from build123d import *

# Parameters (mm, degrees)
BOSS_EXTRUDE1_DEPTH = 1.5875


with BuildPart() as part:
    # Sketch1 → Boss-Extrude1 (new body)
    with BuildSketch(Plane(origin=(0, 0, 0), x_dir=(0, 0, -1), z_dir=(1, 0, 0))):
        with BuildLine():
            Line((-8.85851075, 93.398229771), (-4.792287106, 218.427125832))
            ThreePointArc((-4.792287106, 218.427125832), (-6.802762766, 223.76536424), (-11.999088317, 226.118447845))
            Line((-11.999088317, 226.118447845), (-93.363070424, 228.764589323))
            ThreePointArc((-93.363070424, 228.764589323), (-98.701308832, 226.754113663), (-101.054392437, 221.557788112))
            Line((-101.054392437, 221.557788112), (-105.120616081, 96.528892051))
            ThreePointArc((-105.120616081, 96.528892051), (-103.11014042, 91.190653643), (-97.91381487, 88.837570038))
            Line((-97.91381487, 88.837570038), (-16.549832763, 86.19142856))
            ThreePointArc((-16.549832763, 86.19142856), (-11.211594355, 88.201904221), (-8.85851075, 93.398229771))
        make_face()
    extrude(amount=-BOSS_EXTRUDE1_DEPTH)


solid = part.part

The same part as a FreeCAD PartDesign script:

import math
import FreeCAD as App
import Part
import Sketcher

V = App.Vector
Q = App.Units.Quantity

doc = App.newDocument("Part")
body = doc.addObject("PartDesign::Body", "Body")

# Sketch on YZ plane
sketch1 = doc.addObject("Sketcher::SketchObject", "Sketch")
body.addObject(sketch1)
sketch1.AttachmentSupport = (doc.YZ_Plane, [""])
sketch1.MapMode = "FlatFace"
sketch1.addGeometry([
    Part.LineSegment(V(93, 9, 0), V(218, 5, 0)),  # 0
    Part.ArcOfCircle(Part.Circle(V(219, 12, 0), V(0, 0, 1), 7), math.radians(-92), math.radians(-2)),  # 1
    Part.LineSegment(V(226, 12, 0), V(229, 93, 0)),  # 2
    Part.ArcOfCircle(Part.Circle(V(221, 94, 0), V(0, 0, 1), 7), math.radians(-2), math.radians(88)),  # 3
    Part.LineSegment(V(222, 101, 0), V(97, 105, 0)),  # 4
    Part.ArcOfCircle(Part.Circle(V(96, 98, 0), V(0, 0, 1), 7), math.radians(88), math.radians(178)),  # 5
    Part.LineSegment(V(89, 98, 0), V(86, 17, 0)),  # 6
    Part.ArcOfCircle(Part.Circle(V(94, 16, 0), V(0, 0, 1), 7), math.radians(178), math.radians(268)),  # 7
], False)
sketch1.addConstraint([
    Sketcher.Constraint("Tangent", 0, 2, 1, 1),
    Sketcher.Constraint("Tangent", 1, 2, 2, 1),
    Sketcher.Constraint("Tangent", 2, 2, 3, 1),
    Sketcher.Constraint("Tangent", 3, 2, 4, 1),
    Sketcher.Constraint("Tangent", 4, 2, 5, 1),
    Sketcher.Constraint("Tangent", 5, 2, 6, 1),
    Sketcher.Constraint("Tangent", 6, 2, 7, 1),
    Sketcher.Constraint("Tangent", 7, 2, 0, 1),
    Sketcher.Constraint("Equal", 1, 3),
    Sketcher.Constraint("Equal", 3, 5),
    Sketcher.Constraint("Equal", 5, 7),
    Sketcher.Constraint("Perpendicular", 0, 2),
    Sketcher.Constraint("Perpendicular", 2, 4),
    Sketcher.Constraint("Perpendicular", 4, 6),
    Sketcher.Constraint("Radius", 1, 7.453),
    Sketcher.Constraint("Distance", 0, Q("4.925 in")),
    Sketcher.Constraint("Distance", 2, Q("3.205 in")),
    Sketcher.Constraint("DistanceX", 0, 2, 3, 3, 2.888402),
    Sketcher.Constraint("DistanceY", -1, 1, 1, 3, 12.241349),
    Sketcher.Constraint("DistanceX", -1, 1, 5, 3, 96.286632),
])
pad1 = doc.addObject("PartDesign::Pad", "Pad")
body.addObject(pad1)
pad1.Profile = sketch1
pad1.Length = Q("0.0625 in")
pad1.Reversed = True

doc.recompute()
